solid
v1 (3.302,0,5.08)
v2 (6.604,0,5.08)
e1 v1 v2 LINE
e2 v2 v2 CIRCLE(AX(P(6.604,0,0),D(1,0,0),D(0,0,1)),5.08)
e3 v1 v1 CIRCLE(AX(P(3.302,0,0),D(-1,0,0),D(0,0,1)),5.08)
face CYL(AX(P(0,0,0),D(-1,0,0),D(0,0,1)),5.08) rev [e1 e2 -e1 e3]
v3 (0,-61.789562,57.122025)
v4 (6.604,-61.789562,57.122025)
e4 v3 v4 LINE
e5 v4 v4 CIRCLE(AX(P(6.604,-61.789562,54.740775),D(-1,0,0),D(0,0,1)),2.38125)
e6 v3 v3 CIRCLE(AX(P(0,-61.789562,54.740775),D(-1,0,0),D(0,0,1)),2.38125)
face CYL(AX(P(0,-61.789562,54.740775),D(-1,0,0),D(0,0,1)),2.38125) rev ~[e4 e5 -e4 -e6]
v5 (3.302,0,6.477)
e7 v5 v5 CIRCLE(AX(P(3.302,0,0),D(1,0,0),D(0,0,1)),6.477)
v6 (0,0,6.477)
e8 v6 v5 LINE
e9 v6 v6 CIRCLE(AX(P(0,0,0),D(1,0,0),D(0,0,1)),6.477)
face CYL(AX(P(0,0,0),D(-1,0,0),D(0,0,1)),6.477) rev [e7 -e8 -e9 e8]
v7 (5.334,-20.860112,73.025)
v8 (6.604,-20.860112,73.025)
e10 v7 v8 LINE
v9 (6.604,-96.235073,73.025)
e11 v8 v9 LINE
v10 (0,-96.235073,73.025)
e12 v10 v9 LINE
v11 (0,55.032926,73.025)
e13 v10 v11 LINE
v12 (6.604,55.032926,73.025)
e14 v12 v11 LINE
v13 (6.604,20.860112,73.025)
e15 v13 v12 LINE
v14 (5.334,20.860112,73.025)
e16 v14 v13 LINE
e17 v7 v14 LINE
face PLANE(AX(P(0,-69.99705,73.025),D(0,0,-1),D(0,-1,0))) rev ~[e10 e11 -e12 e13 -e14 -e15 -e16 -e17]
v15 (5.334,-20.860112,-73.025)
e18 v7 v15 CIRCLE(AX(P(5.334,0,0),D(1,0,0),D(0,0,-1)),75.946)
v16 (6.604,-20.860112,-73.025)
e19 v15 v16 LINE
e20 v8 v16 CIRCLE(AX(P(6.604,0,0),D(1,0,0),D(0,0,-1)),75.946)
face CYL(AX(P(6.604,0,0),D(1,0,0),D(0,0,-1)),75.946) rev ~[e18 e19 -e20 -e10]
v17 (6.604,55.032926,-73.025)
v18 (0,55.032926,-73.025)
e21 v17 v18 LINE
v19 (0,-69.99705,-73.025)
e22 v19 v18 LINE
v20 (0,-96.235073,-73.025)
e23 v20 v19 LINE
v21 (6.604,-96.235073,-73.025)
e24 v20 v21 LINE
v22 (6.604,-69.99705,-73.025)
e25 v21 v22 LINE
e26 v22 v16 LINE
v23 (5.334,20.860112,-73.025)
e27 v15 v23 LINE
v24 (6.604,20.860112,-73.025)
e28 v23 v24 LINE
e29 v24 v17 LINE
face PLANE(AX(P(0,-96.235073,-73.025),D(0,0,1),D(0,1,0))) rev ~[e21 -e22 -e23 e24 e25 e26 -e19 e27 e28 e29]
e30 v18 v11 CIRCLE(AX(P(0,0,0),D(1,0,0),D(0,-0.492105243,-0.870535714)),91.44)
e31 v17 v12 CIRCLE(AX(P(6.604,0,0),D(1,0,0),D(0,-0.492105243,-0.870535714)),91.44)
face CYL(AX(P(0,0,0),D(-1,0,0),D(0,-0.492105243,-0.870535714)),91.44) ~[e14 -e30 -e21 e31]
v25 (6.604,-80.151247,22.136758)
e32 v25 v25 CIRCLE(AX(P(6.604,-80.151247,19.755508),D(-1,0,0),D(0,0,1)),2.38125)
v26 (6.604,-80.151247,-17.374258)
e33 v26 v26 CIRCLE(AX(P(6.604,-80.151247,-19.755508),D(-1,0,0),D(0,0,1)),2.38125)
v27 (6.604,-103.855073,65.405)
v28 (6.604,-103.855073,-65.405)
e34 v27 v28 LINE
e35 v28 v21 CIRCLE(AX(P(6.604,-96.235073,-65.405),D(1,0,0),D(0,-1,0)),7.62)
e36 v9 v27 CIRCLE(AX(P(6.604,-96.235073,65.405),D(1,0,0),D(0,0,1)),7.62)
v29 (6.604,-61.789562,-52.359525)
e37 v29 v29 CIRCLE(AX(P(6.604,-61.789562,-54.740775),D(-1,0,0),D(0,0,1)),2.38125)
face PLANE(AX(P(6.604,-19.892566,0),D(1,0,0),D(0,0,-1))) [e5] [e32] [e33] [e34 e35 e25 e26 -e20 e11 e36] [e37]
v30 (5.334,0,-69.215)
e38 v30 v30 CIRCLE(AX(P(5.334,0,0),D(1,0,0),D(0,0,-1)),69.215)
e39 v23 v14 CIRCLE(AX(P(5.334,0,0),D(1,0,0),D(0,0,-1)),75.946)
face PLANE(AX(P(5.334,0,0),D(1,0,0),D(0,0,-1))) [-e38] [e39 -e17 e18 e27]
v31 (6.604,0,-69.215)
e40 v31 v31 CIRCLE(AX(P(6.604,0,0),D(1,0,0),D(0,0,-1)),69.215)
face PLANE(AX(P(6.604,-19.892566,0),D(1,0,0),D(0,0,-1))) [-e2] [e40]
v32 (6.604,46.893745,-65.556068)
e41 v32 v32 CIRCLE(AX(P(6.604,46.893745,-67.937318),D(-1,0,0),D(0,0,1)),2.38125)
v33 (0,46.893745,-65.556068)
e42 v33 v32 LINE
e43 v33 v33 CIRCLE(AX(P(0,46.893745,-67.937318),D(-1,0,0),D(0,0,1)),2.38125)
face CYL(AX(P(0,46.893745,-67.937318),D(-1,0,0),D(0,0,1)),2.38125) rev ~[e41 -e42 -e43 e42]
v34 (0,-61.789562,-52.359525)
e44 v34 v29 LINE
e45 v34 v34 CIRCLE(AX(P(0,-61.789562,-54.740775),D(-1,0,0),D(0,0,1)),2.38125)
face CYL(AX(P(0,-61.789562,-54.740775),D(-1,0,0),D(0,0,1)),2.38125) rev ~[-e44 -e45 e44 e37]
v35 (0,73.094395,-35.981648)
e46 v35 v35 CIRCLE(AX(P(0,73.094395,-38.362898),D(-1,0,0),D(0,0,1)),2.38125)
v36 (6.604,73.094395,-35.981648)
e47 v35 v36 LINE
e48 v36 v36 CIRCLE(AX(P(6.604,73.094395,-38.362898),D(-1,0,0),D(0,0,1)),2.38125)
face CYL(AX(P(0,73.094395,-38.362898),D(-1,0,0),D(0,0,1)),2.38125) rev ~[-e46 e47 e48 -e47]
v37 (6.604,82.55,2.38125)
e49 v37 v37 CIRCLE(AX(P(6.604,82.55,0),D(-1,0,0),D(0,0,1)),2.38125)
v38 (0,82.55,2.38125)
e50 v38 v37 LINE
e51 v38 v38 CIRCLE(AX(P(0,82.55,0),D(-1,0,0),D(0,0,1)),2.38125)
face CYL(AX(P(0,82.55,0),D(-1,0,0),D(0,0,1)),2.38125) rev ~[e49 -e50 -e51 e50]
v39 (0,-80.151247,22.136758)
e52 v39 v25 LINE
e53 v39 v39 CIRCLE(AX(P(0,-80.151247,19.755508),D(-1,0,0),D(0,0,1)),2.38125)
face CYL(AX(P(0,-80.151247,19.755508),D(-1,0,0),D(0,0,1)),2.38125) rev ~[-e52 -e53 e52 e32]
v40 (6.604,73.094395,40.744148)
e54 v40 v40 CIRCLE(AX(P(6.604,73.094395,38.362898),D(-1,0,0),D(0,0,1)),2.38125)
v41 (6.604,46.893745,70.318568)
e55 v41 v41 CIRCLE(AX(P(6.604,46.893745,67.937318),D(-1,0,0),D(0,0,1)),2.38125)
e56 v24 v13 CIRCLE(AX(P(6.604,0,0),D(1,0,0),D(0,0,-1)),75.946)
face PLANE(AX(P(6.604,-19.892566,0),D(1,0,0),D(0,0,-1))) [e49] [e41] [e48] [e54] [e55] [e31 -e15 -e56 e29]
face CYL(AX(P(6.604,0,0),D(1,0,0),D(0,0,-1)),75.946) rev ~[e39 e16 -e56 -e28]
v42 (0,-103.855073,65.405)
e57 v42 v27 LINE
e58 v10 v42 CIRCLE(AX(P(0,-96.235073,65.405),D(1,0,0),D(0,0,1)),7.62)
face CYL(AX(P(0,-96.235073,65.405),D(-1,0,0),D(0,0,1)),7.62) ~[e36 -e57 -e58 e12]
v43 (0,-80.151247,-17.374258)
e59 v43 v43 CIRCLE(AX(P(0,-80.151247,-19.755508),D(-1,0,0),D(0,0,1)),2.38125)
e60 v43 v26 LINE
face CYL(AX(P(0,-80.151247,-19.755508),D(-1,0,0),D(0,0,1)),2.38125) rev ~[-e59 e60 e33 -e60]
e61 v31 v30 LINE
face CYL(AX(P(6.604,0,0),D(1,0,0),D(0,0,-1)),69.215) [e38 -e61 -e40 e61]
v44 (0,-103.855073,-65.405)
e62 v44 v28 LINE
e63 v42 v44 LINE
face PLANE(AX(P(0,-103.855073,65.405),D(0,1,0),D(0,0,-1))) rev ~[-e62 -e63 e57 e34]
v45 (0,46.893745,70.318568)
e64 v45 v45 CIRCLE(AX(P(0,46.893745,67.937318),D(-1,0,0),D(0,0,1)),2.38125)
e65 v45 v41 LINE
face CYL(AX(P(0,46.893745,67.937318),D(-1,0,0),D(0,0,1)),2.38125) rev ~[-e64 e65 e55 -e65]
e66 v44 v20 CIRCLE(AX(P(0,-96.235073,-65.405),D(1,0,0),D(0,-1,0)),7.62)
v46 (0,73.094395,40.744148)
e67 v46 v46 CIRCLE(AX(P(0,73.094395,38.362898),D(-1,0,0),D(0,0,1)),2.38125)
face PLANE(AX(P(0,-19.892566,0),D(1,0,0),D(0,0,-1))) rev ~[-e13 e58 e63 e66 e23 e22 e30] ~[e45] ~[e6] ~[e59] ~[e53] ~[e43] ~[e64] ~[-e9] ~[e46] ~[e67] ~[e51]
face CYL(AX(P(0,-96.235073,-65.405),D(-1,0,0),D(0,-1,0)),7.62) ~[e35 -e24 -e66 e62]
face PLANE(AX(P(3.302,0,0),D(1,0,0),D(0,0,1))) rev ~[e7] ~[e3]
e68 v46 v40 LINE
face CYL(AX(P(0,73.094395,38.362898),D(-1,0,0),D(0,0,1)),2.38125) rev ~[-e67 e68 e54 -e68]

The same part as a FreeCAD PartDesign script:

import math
import FreeCAD as App
import Part
import Sketcher

V = App.Vector
Q = App.Units.Quantity

doc = App.newDocument("Part")
body = doc.addObject("PartDesign::Body", "Body")

sketch1 = doc.addObject("Sketcher::SketchObject", "Sketch")
body.addObject(sketch1)
sketch1.AttachmentSupport = (doc.YZ_Plane, [""])
sketch1.MapMode = "FlatFace"
sketch1.addGeometry([
    Part.LineSegment(V(-104, 65, 0), V(-104, -65, 0)),
    Part.ArcOfCircle(Part.Circle(V(-96, -65, 0), V(0, 0, 1), 8), math.radians(180), math.radians(270)),
    Part.LineSegment(V(-96, -73, 0), V(-70, -73, 0)),
    Part.ArcOfCircle(Part.Circle(V(-70, -124, 0), V(0, 0, 1), 51), math.radians(61), math.radians(90)),
    Part.ArcOfCircle(Part.Circle(V(0, 0, 0), V(0, 0, 1), 91), math.radians(-119), math.radians(119)),
    Part.ArcOfCircle(Part.Circle(V(-70, 124, 0), V(0, 0, 1), 51), math.radians(-90), math.radians(-61)),
    Part.LineSegment(V(-70, 73, 0), V(-96, 73, 0)),
    Part.ArcOfCircle(Part.Circle(V(-96, 65, 0), V(0, 0, 1), 8), math.radians(90), math.radians(180)),
    Part.Circle(V(0, 0, 0), V(0, 0, 1), 5),
], False)
sketch1.addConstraint([
    Sketcher.Constraint("Tangent", 0, 2, 1, 1),
    Sketcher.Constraint("Tangent", 1, 2, 2, 1),
    Sketcher.Constraint("Tangent", 2, 2, 3, 2),
    Sketcher.Constraint("Tangent", 3, 1, 4, 1),
    Sketcher.Constraint("Tangent", 4, 2, 5, 2),
    Sketcher.Constraint("Tangent", 5, 1, 6, 1),
    Sketcher.Constraint("Tangent", 6, 2, 7, 1),
    Sketcher.Constraint("Tangent", 7, 2, 0, 1),
    Sketcher.Constraint("Vertical", 0),
    Sketcher.Constraint("Horizontal", 2),
    Sketcher.Constraint("Horizontal", 6),
    Sketcher.Constraint("Coincident", 4, 3, -1, 1),
    Sketcher.Constraint("Coincident", 8, 3, -1, 1),
    Sketcher.Constraint("Equal", 3, 5),
    Sketcher.Constraint("Equal", 1, 7),
    Sketcher.Constraint("Vertical", 3, 3, 5, 3),
    Sketcher.Constraint("Radius", 3, Q("2 in")),
    Sketcher.Constraint("Diameter", 8, Q("0.4 in")),
    Sketcher.Constraint("Radius", 1, Q("0.3 in")),
    Sketcher.Constraint("Radius", 4, Q("3.6 in")),
    Sketcher.Constraint("DistanceY", 0, 2, 0, 1, Q("5.15 in")),
    Sketcher.Constraint("DistanceX", 2, 1, 2, 2, Q("26.238023 mm")),
])
pad1 = doc.addObject("PartDesign::Pad", "Pad")
body.addObject(pad1)
pad1.Profile = sketch1
pad1.Length = Q("0.26 in")

sketch2 = doc.addObject("Sketcher::SketchObject", "Sketch001")
body.addObject(sketch2)
sketch2.AttachmentSupport = (doc.YZ_Plane, [""])
sketch2.MapMode = "FlatFace"
sketch2.addGeometry(Part.Circle(V(0, 0, 0), V(0, 0, 1), 6), False)
sketch2.addConstraint([
    Sketcher.Constraint("Coincident", 0, 3, -1, 1),
    Sketcher.Constraint("Diameter", 0, Q("0.51 in")),
])
pocket1 = doc.addObject("PartDesign::Pocket", "Pocket")
body.addObject(pocket1)
pocket1.Profile = sketch2
pocket1.Length = Q("0.13 in")
pocket1.Reversed = True

sketch3 = doc.addObject("Sketcher::SketchObject", "Sketch002")
body.addObject(sketch3)
sketch3.AttachmentSupport = (doc.YZ_Plane, [""])
sketch3.MapMode = "FlatFace"
sketch3.AttachmentOffset = App.Placement(V(0, 0, 0.26 * 25.4), App.Rotation())
sketch3.addGeometry([
    Part.Circle(V(0, 0, 0), V(0, 0, 1), 76),
    Part.Circle(V(0, 0, 0), V(0, 0, 1), 69),
], False)
sketch3.addConstraint([
    Sketcher.Constraint("Coincident", 0, 3, -1, 1),
    Sketcher.Constraint("Coincident", 1, 3, -1, 1),
    Sketcher.Constraint("Diameter", 0, Q("5.98 in")),
    Sketcher.Constraint("Diameter", 1, Q("5.45 in")),
])
pocket2 = doc.addObject("PartDesign::Pocket", "Pocket001")
body.addObject(pocket2)
pocket2.Profile = sketch3
pocket2.Length = Q("0.05 in")

sketch4 = doc.addObject("Sketcher::SketchObject", "Sketch003")
body.addObject(sketch4)
sketch4.AttachmentSupport = (doc.YZ_Plane, [""])
sketch4.MapMode = "FlatFace"
sketch4.addGeometry([
    Part.Circle(V(-61.8, -54.7, 0), V(0, 0, 1), 2.4),
    Part.Circle(V(82.5, 0, 0), V(0, 0, 1), 2.4),
    Part.Circle(V(-29.3, -77.2, 0), V(0, 0, 1), 2.4),
    Part.Circle(V(73.1, 38.4, 0), V(0, 0, 1), 2.4),
    Part.Circle(V(46.9, 67.9, 0), V(0, 0, 1), 2.4),
    Part.Circle(V(10, 81.9, 0), V(0, 0, 1), 2.4),
    Part.Circle(V(-29.3, 77.2, 0), V(0, 0, 1), 2.4),
    Part.Circle(V(-61.8, 54.7, 0), V(0, 0, 1), 2.4),
    Part.Circle(V(-80.2, 19.8, 0), V(0, 0, 1), 2.4),
    Part.Circle(V(-80.2, -19.8, 0), V(0, 0, 1), 2.4),
    Part.Circle(V(10, -81.9, 0), V(0, 0, 1), 2.4),
    Part.Circle(V(46.9, -67.9, 0), V(0, 0, 1), 2.4),
    Part.Circle(V(73.1, -38.4, 0), V(0, 0, 1), 2.4),
], False)
sketch4.addConstraint([
    Sketcher.Constraint("Equal", 0, 1),
    Sketcher.Constraint("Equal", 1, 2),
    Sketcher.Constraint("Equal", 2, 3),
    Sketcher.Constraint("Equal", 3, 4),
    Sketcher.Constraint("Equal", 4, 5),
    Sketcher.Constraint("Equal", 5, 6),
    Sketcher.Constraint("Equal", 6, 7),
    Sketcher.Constraint("Equal", 7, 8),
    Sketcher.Constraint("Equal", 8, 9),
    Sketcher.Constraint("Equal", 9, 10),
    Sketcher.Constraint("Equal", 10, 11),
    Sketcher.Constraint("Equal", 11, 12),
    Sketcher.Constraint("Symmetric", 2, 3, 6, 3, -1),
    Sketcher.Constraint("Symmetric", 0, 3, 7, 3, -1),
    Sketcher.Constraint("Symmetric", 8, 3, 9, 3, -1),
    Sketcher.Constraint("Symmetric", 5, 3, 10, 3, -1),
    Sketcher.Constraint("Symmetric", 4, 3, 11, 3, -1),
    Sketcher.Constraint("Symmetric", 3, 3, 12, 3, -1),
    Sketcher.Constraint("PointOnObject", 1, 3, -1),
    Sketcher.Constraint("Diameter", 0, Q("0.1875 in")),
    Sketcher.Constraint("DistanceX", -1, 1, 1, 3, Q("3.25 in")),
    Sketcher.Constraint("DistanceY", 4, 3, 5, 3, Q("14.010799 mm")),
    Sketcher.Constraint("DistanceY", 2, 3, 8, 3, Q("96.941099 mm")),
    Sketcher.Constraint("DistanceY", 2, 3, -1, 1, Q("77.185591 mm")),
    Sketcher.Constraint("DistanceY", -1, 1, 4, 3, Q("67.937318 mm")),
    Sketcher.Constraint("DistanceX", 0, 3, 2, 3, Q("32.516929 mm")),
    Sketcher.Constraint("DistanceX", 2, 3, 3, 3, Q("102.367028 mm")),
    Sketcher.Constraint("DistanceY", 2, 3, 3, 3, Q("115.548489 mm")),
    Sketcher.Constraint("DistanceX", 4, 3, 3, 3, Q("26.20065 mm")),
    Sketcher.Constraint("DistanceX", 5, 3, 4, 3, Q("36.943442 mm")),
    Sketcher.Constraint("DistanceY", 0, 3, 7, 3, Q("109.481551 mm")),
    Sketcher.Constraint("DistanceX", 8, 3, 5, 3, Q("90.10155 mm")),
    Sketcher.Constraint("DistanceX", 0, 3, -1, 1, Q("61.789562 mm")),
])
pocket3 = doc.addObject("PartDesign::Pocket", "Pocket002")
body.addObject(pocket3)
pocket3.Profile = sketch4
pocket3.Type = "ThroughAll"
pocket3.Reversed = True

sketch5 = doc.addObject("Sketcher::SketchObject", "Sketch004")
body.addObject(sketch5)
sketch5.AttachmentSupport = (doc.YZ_Plane, [""])
sketch5.MapMode = "FlatFace"
sketch5.AttachmentOffset = App.Placement(V(0, 0, 0.26 * 25.4), App.Rotation())
sketch5.addGeometry([
    Part.LineSegment(V(55, 111, 0), V(-70, 111, 0)),
    Part.LineSegment(V(-70, 111, 0), V(-70, 73, 0)),
    Part.LineSegment(V(-70, 73, 0), V(55, 73, 0)),
    Part.LineSegment(V(55, 73, 0), V(55, 111, 0)),
    Part.LineSegment(V(55, -73, 0), V(-70, -73, 0)),
    Part.LineSegment(V(-70, -73, 0), V(-70, -103, 0)),
    Part.LineSegment(V(-70, -103, 0), V(55, -103, 0)),
    Part.LineSegment(V(55, -103, 0), V(55, -73, 0)),
], False)
sketch5.addConstraint([
    Sketcher.Constraint("Coincident", 0, 2, 1, 1),
    Sketcher.Constraint("Coincident", 1, 2, 2, 1),
    Sketcher.Constraint("Coincident", 2, 2, 3, 1),
    Sketcher.Constraint("Coincident", 3, 2, 0, 1),
    Sketcher.Constraint("Coincident", 4, 2, 5, 1),
    Sketcher.Constraint("Coincident", 5, 2, 6, 1),
    Sketcher.Constraint("Coincident", 6, 2, 7, 1),
    Sketcher.Constraint("Coincident", 7, 2, 4, 1),
    Sketcher.Constraint("Horizontal", 0),
    Sketcher.Constraint("Vertical", 1),
    Sketcher.Constraint("Horizontal", 2),
    Sketcher.Constraint("Vertical", 3),
    Sketcher.Constraint("Horizontal", 4),
    Sketcher.Constraint("Vertical", 5),
    Sketcher.Constraint("Horizontal", 6),
    Sketcher.Constraint("Vertical", 7),
    Sketcher.Constraint("Symmetric", 1, 2, 4, 2, -1),
    Sketcher.Constraint("Vertical", 3, 2, 6, 2),
    Sketcher.Constraint("DistanceY", 4, 2, 1, 2, Q("5.75 in")),
    Sketcher.Constraint("DistanceX", 0, 2, 0, 1, Q("125.029976 mm")),
    Sketcher.Constraint("DistanceY", 1, 2, 1, 1, Q("37.512645 mm")),
    Sketcher.Constraint("DistanceY", 5, 2, 5, 1, Q("29.936637 mm")),
    Sketcher.Constraint("DistanceX", 0, 2, -1, 1, Q("69.99705 mm")),
])
pocket4 = doc.addObject("PartDesign::Pocket", "Pocket003")
body.addObject(pocket4)
pocket4.Profile = sketch5
pocket4.Type = "ThroughAll"

doc.recompute()
